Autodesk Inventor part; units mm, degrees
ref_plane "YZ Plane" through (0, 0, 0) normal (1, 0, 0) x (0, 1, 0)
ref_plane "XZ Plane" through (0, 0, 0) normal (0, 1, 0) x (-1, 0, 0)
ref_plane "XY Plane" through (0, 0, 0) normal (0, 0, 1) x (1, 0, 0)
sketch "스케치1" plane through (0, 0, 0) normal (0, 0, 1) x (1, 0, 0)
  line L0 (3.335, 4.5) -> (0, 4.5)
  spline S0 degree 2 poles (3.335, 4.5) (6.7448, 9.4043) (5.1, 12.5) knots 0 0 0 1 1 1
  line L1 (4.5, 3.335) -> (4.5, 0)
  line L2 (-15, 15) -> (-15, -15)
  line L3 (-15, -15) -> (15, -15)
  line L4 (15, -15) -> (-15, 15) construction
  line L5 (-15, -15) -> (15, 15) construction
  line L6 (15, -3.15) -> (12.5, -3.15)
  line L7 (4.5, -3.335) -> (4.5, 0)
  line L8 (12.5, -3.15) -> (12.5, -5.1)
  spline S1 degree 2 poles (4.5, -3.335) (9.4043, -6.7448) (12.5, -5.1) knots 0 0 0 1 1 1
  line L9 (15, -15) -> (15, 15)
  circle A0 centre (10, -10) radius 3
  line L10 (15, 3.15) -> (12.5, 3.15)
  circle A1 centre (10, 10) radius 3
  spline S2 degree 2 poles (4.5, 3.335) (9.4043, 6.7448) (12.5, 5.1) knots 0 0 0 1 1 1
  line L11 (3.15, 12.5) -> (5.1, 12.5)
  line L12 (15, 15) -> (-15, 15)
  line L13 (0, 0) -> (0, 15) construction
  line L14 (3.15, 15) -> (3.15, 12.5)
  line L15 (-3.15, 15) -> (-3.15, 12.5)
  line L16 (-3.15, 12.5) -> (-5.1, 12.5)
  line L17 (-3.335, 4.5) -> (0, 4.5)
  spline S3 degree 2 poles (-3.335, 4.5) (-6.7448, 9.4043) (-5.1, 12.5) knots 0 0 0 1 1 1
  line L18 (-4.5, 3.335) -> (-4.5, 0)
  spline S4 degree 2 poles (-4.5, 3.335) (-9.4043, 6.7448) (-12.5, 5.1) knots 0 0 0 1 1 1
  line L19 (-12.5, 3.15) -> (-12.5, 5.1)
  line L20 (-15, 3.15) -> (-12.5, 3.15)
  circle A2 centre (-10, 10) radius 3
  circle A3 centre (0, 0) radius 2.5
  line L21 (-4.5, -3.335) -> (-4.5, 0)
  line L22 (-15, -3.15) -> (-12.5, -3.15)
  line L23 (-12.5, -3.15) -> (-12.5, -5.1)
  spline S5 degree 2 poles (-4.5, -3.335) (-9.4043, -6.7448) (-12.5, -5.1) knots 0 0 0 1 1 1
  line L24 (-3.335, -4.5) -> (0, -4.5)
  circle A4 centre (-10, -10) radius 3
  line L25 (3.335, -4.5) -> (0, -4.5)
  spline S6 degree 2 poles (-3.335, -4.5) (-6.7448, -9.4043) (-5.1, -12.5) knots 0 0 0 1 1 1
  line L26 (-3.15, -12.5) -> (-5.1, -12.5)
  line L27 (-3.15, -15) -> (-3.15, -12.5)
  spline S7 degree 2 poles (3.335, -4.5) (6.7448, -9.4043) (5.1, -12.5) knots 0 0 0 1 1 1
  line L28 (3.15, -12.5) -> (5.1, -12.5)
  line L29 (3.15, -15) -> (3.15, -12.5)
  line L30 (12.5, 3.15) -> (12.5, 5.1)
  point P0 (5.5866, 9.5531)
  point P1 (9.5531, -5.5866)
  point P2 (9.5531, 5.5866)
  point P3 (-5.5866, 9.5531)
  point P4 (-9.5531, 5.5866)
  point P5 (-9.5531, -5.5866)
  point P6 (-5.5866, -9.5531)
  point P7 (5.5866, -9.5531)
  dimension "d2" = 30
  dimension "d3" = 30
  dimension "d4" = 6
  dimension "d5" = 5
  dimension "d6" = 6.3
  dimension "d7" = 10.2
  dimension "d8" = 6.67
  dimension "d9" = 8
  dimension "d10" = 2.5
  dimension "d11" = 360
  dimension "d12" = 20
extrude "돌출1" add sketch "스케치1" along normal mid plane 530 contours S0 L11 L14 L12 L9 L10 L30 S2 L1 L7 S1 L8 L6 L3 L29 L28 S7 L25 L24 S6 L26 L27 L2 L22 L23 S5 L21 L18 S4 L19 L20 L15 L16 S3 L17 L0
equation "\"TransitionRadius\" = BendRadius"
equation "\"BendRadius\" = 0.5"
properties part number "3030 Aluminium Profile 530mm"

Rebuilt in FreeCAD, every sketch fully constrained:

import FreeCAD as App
import Part
import Sketcher

V = App.Vector
Q = App.Units.Quantity

doc = App.newDocument("Part")
body = doc.addObject("PartDesign::Body", "Body")

# Sketch on XY plane
sketch1 = doc.addObject("Sketcher::SketchObject", "Sketch")
body.addObject(sketch1)
sketch1.AttachmentSupport = (doc.XY_Plane, [""])
sketch1.MapMode = "FlatFace"
sketch1.addGeometry(Part.BSplineCurve([V(3.335, 4.5, 0), V(6.7448, 9.4043, 0), V(5.1, 12.5, 0)], [3, 3], [0, 1], False, 2, [1, 1, 1], False), False)
sketch1.addGeometry(Part.LineSegment(V(3.335, 4.5, 0), V(-3.335, 4.5, 0)), False)
sketch1.addGeometry(Part.BSplineCurve([V(-3.335, 4.5, 0), V(-6.7448, 9.4043, 0), V(-5.1, 12.5, 0)], [3, 3], [0, 1], False, 2, [1, 1, 1], False), False)
sketch1.addGeometry(Part.LineSegment(V(-5.1, 12.5, 0), V(-3.15, 12.5, 0)), False)
sketch1.addGeometry(Part.LineSegment(V(-3.15, 12.5, 0), V(-3.15, 15, 0)), False)
sketch1.addGeometry(Part.LineSegment(V(-3.15, 15, 0), V(-15, 15, 0)), False)
sketch1.addGeometry(Part.LineSegment(V(-15, 15, 0), V(-15, 3.15, 0)), False)
sketch1.addGeometry(Part.LineSegment(V(-15, 3.15, 0), V(-12.5, 3.15, 0)), False)
sketch1.addGeometry(Part.LineSegment(V(-12.5, 3.15, 0), V(-12.5, 5.1, 0)), False)
sketch1.addGeometry(Part.BSplineCurve([V(-4.5, 3.335, 0), V(-9.4043, 6.7448, 0), V(-12.5, 5.1, 0)], [3, 3], [0, 1], False, 2, [1, 1, 1], False), False)
sketch1.addGeometry(Part.LineSegment(V(-4.5, 3.335, 0), V(-4.5, -3.335, 0)), False)
sketch1.addGeometry(Part.BSplineCurve([V(-4.5, -3.335, 0), V(-9.4043, -6.7448, 0), V(-12.5, -5.1, 0)], [3, 3], [0, 1], False, 2, [1, 1, 1], False), False)
sketch1.addGeometry(Part.LineSegment(V(-12.5, -5.1, 0), V(-12.5, -3.15, 0)), False)
sketch1.addGeometry(Part.LineSegment(V(-12.5, -3.15, 0), V(-15, -3.15, 0)), False)
sketch1.addGeometry(Part.LineSegment(V(-15, -3.15, 0), V(-15, -15, 0)), False)
sketch1.addGeometry(Part.LineSegment(V(-15, -15, 0), V(-3.15, -15, 0)), False)
sketch1.addGeometry(Part.LineSegment(V(-3.15, -15, 0), V(-3.15, -12.5, 0)), False)
sketch1.addGeometry(Part.LineSegment(V(-3.15, -12.5, 0), V(-5.1, -12.5, 0)), False)
sketch1.addGeometry(Part.BSplineCurve([V(-3.335, -4.5, 0), V(-6.7448, -9.4043, 0), V(-5.1, -12.5, 0)], [3, 3], [0, 1], False, 2, [1, 1, 1], False), False)
sketch1.addGeometry(Part.LineSegment(V(-3.335, -4.5, 0), V(3.335, -4.5, 0)), False)
sketch1.addGeometry(Part.BSplineCurve([V(3.335, -4.5, 0), V(6.7448, -9.4043, 0), V(5.1, -12.5, 0)], [3, 3], [0, 1], False, 2, [1, 1, 1], False), False)
sketch1.addGeometry(Part.LineSegment(V(5.1, -12.5, 0), V(3.15, -12.5, 0)), False)
sketch1.addGeometry(Part.LineSegment(V(3.15, -12.5, 0), V(3.15, -15, 0)), False)
sketch1.addGeometry(Part.LineSegment(V(3.15, -15, 0), V(15, -15, 0)), False)
sketch1.addGeometry(Part.LineSegment(V(15, -15, 0), V(15, -3.15, 0)), False)
sketch1.addGeometry(Part.LineSegment(V(15, -3.15, 0), V(12.5, -3.15, 0)), False)
sketch1.addGeometry(Part.LineSegment(V(12.5, -3.15, 0), V(12.5, -5.1, 0)), False)
sketch1.addGeometry(Part.BSplineCurve([V(4.5, -3.335, 0), V(9.4043, -6.7448, 0), V(12.5, -5.1, 0)], [3, 3], [0, 1], False, 2, [1, 1, 1], False), False)
sketch1.addGeometry(Part.LineSegment(V(4.5, -3.335, 0), V(4.5, 3.335, 0)), False)
sketch1.addGeometry(Part.BSplineCurve([V(4.5, 3.335, 0), V(9.4043, 6.7448, 0), V(12.5, 5.1, 0)], [3, 3], [0, 1], False, 2, [1, 1, 1], False), False)
sketch1.addGeometry(Part.LineSegment(V(12.5, 5.1, 0), V(12.5, 3.15, 0)), False)
sketch1.addGeometry(Part.LineSegment(V(12.5, 3.15, 0), V(15, 3.15, 0)), False)
sketch1.addGeometry(Part.LineSegment(V(15, 3.15, 0), V(15, 15, 0)), False)
sketch1.addGeometry(Part.LineSegment(V(15, 15, 0), V(3.15, 15, 0)), False)
sketch1.addGeometry(Part.LineSegment(V(3.15, 15, 0), V(3.15, 12.5, 0)), False)
sketch1.addGeometry(Part.LineSegment(V(3.15, 12.5, 0), V(5.1, 12.5, 0)), False)
sketch1.addGeometry(Part.Circle(V(-10, -10, 0), V(0, 0, 1), 3), False)
sketch1.addGeometry(Part.Circle(V(10, -10, 0), V(0, 0, 1), 3), False)
sketch1.addGeometry(Part.Circle(V(-10, 10, 0), V(0, 0, 1), 3), False)
sketch1.addGeometry(Part.Circle(V(0, 0, 0), V(0, 0, 1), 2.5), False)
sketch1.addGeometry(Part.Circle(V(10, 10, 0), V(0, 0, 1), 3), False)
sketch1.addConstraint(Sketcher.Constraint("Block", 0))
sketch1.addConstraint(Sketcher.Constraint("Block", 2))
sketch1.addConstraint(Sketcher.Constraint("Block", 9))
sketch1.addConstraint(Sketcher.Constraint("Block", 11))
sketch1.addConstraint(Sketcher.Constraint("Block", 18))
sketch1.addConstraint(Sketcher.Constraint("Block", 20))
sketch1.addConstraint(Sketcher.Constraint("Block", 27))
sketch1.addConstraint(Sketcher.Constraint("Block", 29))
sketch1.addConstraint(Sketcher.Constraint("Coincident", 0, 1, 1, 1))
sketch1.addConstraint(Sketcher.Constraint("Coincident", 1, 2, 2, 1))
sketch1.addConstraint(Sketcher.Constraint("Coincident", 2, 2, 3, 1))
sketch1.addConstraint(Sketcher.Constraint("Coincident", 3, 2, 4, 1))
sketch1.addConstraint(Sketcher.Constraint("Coincident", 4, 2, 5, 1))
sketch1.addConstraint(Sketcher.Constraint("Coincident", 5, 2, 6, 1))
sketch1.addConstraint(Sketcher.Constraint("Coincident", 6, 2, 7, 1))
sketch1.addConstraint(Sketcher.Constraint("Coincident", 7, 2, 8, 1))
sketch1.addConstraint(Sketcher.Constraint("Coincident", 8, 2, 9, 2))
sketch1.addConstraint(Sketcher.Constraint("Coincident", 9, 1, 10, 1))
sketch1.addConstraint(Sketcher.Constraint("Coincident", 10, 2, 11, 1))
sketch1.addConstraint(Sketcher.Constraint("Coincident", 11, 2, 12, 1))
sketch1.addConstraint(Sketcher.Constraint("Coincident", 12, 2, 13, 1))
sketch1.addConstraint(Sketcher.Constraint("Coincident", 13, 2, 14, 1))
sketch1.addConstraint(Sketcher.Constraint("Coincident", 14, 2, 15, 1))
sketch1.addConstraint(Sketcher.Constraint("Coincident", 15, 2, 16, 1))
sketch1.addConstraint(Sketcher.Constraint("Coincident", 16, 2, 17, 1))
sketch1.addConstraint(Sketcher.Constraint("Coincident", 17, 2, 18, 2))
sketch1.addConstraint(Sketcher.Constraint("Coincident", 18, 1, 19, 1))
sketch1.addConstraint(Sketcher.Constraint("Coincident", 19, 2, 20, 1))
sketch1.addConstraint(Sketcher.Constraint("Coincident", 20, 2, 21, 1))
sketch1.addConstraint(Sketcher.Constraint("Coincident", 21, 2, 22, 1))
sketch1.addConstraint(Sketcher.Constraint("Coincident", 22, 2, 23, 1))
sketch1.addConstraint(Sketcher.Constraint("Coincident", 23, 2, 24, 1))
sketch1.addConstraint(Sketcher.Constraint("Coincident", 24, 2, 25, 1))
sketch1.addConstraint(Sketcher.Constraint("Coincident", 25, 2, 26, 1))
sketch1.addConstraint(Sketcher.Constraint("Coincident", 26, 2, 27, 2))
sketch1.addConstraint(Sketcher.Constraint("Coincident", 27, 1, 28, 1))
sketch1.addConstraint(Sketcher.Constraint("Coincident", 28, 2, 29, 1))
sketch1.addConstraint(Sketcher.Constraint("Coincident", 29, 2, 30, 1))
sketch1.addConstraint(Sketcher.Constraint("Coincident", 30, 2, 31, 1))
sketch1.addConstraint(Sketcher.Constraint("Coincident", 31, 2, 32, 1))
sketch1.addConstraint(Sketcher.Constraint("Coincident", 32, 2, 33, 1))
sketch1.addConstraint(Sketcher.Constraint("Coincident", 33, 2, 34, 1))
sketch1.addConstraint(Sketcher.Constraint("Coincident", 34, 2, 35, 1))
sketch1.addConstraint(Sketcher.Constraint("Coincident", 35, 2, 0, 2))
sketch1.addConstraint(Sketcher.Constraint("Horizontal", 3))
sketch1.addConstraint(Sketcher.Constraint("Vertical", 4))
sketch1.addConstraint(Sketcher.Constraint("Horizontal", 5))
sketch1.addConstraint(Sketcher.Constraint("Vertical", 6))
sketch1.addConstraint(Sketcher.Constraint("Horizontal", 7))
sketch1.addConstraint(Sketcher.Constraint("Vertical", 8))
sketch1.addConstraint(Sketcher.Constraint("Vertical", 12))
sketch1.addConstraint(Sketcher.Constraint("Horizontal", 13))
sketch1.addConstraint(Sketcher.Constraint("Vertical", 14))
sketch1.addConstraint(Sketcher.Constraint("Horizontal", 15))
sketch1.addConstraint(Sketcher.Constraint("Vertical", 16))
sketch1.addConstraint(Sketcher.Constraint("Horizontal", 17))
sketch1.addConstraint(Sketcher.Constraint("Horizontal", 21))
sketch1.addConstraint(Sketcher.Constraint("Vertical", 22))
sketch1.addConstraint(Sketcher.Constraint("Horizontal", 23))
sketch1.addConstraint(Sketcher.Constraint("Vertical", 24))
sketch1.addConstraint(Sketcher.Constraint("Horizontal", 25))
sketch1.addConstraint(Sketcher.Constraint("Vertical", 26))
sketch1.addConstraint(Sketcher.Constraint("Vertical", 30))
sketch1.addConstraint(Sketcher.Constraint("Horizontal", 31))
sketch1.addConstraint(Sketcher.Constraint("Vertical", 32))
sketch1.addConstraint(Sketcher.Constraint("Horizontal", 33))
sketch1.addConstraint(Sketcher.Constraint("Vertical", 34))
sketch1.addConstraint(Sketcher.Constraint("Horizontal", 35))
sketch1.addConstraint(Sketcher.Constraint("Coincident", 39, 3, -1, 1))
sketch1.addConstraint(Sketcher.Constraint("Diameter", 36, Q("6 mm")))
sketch1.addConstraint(Sketcher.Constraint("Diameter", 37, Q("6 mm")))
sketch1.addConstraint(Sketcher.Constraint("Diameter", 38, Q("6 mm")))
sketch1.addConstraint(Sketcher.Constraint("Diameter", 39, Q("5 mm")))
sketch1.addConstraint(Sketcher.Constraint("Diameter", 40, Q("6 mm")))
sketch1.addConstraint(Sketcher.Constraint("DistanceX", 7, 1, 7, 2, Q("2.5 mm")))
sketch1.addConstraint(Sketcher.Constraint("DistanceX", 13, 2, 13, 1, Q("2.5 mm")))
sketch1.addConstraint(Sketcher.Constraint("DistanceX", 25, 2, 25, 1, Q("2.5 mm")))
sketch1.addConstraint(Sketcher.Constraint("DistanceX", 31, 1, 31, 2, Q("2.5 mm")))
sketch1.addConstraint(Sketcher.Constraint("DistanceY", 4, 1, 4, 2, Q("2.5 mm")))
sketch1.addConstraint(Sketcher.Constraint("DistanceY", 16, 1, 16, 2, Q("2.5 mm")))
sketch1.addConstraint(Sketcher.Constraint("DistanceY", 22, 2, 22, 1, Q("2.5 mm")))
sketch1.addConstraint(Sketcher.Constraint("DistanceY", 34, 2, 34, 1, Q("2.5 mm")))
sketch1.addConstraint(Sketcher.Constraint("DistanceX", 36, 3, 37, 3, Q("20 mm")))
sketch1.addConstraint(Sketcher.Constraint("DistanceY", 36, 3, 38, 3, Q("20 mm")))
sketch1.addConstraint(Sketcher.Constraint("DistanceX", 38, 3, 37, 3, Q("20 mm")))
sketch1.addConstraint(Sketcher.Constraint("DistanceY", 37, 3, 38, 3, Q("20 mm")))
sketch1.addConstraint(Sketcher.Constraint("DistanceY", 37, 3, 40, 3, Q("20 mm")))
sketch1.addConstraint(Sketcher.Constraint("DistanceX", 38, 3, 40, 3, Q("20 mm")))
sketch1.addConstraint(Sketcher.Constraint("DistanceY", 38, 3, 4, 2, Q("5 mm")))
sketch1.addConstraint(Sketcher.Constraint("DistanceX", 5, 2, 38, 3, Q("5 mm")))
sketch1.addConstraint(Sketcher.Constraint("DistanceY", 12, 2, 7, 2, Q("6.3 mm")))
sketch1.addConstraint(Sketcher.Constraint("DistanceX", 16, 2, 21, 2, Q("6.3 mm")))
sketch1.addConstraint(Sketcher.Constraint("DistanceY", 25, 2, 30, 2, Q("6.3 mm")))
sketch1.addConstraint(Sketcher.Constraint("DistanceX", 4, 2, 33, 2, Q("6.3 mm")))
sketch1.addConstraint(Sketcher.Constraint("DistanceX", 3, 1, 3, 2, Q("1.95 mm")))
sketch1.addConstraint(Sketcher.Constraint("DistanceX", 15, 1, 15, 2, Q("11.85 mm")))
sketch1.addConstraint(Sketcher.Constraint("DistanceY", 6, 2, 6, 1, Q("11.85 mm")))
sketch1.addConstraint(Sketcher.Constraint("DistanceY", 24, 1, 24, 2, Q("11.85 mm")))
pad1 = doc.addObject("PartDesign::Pad", "Pad")
body.addObject(pad1)
pad1.Profile = sketch1
pad1.Length = 530
pad1.Midplane = True

doc.recompute()
